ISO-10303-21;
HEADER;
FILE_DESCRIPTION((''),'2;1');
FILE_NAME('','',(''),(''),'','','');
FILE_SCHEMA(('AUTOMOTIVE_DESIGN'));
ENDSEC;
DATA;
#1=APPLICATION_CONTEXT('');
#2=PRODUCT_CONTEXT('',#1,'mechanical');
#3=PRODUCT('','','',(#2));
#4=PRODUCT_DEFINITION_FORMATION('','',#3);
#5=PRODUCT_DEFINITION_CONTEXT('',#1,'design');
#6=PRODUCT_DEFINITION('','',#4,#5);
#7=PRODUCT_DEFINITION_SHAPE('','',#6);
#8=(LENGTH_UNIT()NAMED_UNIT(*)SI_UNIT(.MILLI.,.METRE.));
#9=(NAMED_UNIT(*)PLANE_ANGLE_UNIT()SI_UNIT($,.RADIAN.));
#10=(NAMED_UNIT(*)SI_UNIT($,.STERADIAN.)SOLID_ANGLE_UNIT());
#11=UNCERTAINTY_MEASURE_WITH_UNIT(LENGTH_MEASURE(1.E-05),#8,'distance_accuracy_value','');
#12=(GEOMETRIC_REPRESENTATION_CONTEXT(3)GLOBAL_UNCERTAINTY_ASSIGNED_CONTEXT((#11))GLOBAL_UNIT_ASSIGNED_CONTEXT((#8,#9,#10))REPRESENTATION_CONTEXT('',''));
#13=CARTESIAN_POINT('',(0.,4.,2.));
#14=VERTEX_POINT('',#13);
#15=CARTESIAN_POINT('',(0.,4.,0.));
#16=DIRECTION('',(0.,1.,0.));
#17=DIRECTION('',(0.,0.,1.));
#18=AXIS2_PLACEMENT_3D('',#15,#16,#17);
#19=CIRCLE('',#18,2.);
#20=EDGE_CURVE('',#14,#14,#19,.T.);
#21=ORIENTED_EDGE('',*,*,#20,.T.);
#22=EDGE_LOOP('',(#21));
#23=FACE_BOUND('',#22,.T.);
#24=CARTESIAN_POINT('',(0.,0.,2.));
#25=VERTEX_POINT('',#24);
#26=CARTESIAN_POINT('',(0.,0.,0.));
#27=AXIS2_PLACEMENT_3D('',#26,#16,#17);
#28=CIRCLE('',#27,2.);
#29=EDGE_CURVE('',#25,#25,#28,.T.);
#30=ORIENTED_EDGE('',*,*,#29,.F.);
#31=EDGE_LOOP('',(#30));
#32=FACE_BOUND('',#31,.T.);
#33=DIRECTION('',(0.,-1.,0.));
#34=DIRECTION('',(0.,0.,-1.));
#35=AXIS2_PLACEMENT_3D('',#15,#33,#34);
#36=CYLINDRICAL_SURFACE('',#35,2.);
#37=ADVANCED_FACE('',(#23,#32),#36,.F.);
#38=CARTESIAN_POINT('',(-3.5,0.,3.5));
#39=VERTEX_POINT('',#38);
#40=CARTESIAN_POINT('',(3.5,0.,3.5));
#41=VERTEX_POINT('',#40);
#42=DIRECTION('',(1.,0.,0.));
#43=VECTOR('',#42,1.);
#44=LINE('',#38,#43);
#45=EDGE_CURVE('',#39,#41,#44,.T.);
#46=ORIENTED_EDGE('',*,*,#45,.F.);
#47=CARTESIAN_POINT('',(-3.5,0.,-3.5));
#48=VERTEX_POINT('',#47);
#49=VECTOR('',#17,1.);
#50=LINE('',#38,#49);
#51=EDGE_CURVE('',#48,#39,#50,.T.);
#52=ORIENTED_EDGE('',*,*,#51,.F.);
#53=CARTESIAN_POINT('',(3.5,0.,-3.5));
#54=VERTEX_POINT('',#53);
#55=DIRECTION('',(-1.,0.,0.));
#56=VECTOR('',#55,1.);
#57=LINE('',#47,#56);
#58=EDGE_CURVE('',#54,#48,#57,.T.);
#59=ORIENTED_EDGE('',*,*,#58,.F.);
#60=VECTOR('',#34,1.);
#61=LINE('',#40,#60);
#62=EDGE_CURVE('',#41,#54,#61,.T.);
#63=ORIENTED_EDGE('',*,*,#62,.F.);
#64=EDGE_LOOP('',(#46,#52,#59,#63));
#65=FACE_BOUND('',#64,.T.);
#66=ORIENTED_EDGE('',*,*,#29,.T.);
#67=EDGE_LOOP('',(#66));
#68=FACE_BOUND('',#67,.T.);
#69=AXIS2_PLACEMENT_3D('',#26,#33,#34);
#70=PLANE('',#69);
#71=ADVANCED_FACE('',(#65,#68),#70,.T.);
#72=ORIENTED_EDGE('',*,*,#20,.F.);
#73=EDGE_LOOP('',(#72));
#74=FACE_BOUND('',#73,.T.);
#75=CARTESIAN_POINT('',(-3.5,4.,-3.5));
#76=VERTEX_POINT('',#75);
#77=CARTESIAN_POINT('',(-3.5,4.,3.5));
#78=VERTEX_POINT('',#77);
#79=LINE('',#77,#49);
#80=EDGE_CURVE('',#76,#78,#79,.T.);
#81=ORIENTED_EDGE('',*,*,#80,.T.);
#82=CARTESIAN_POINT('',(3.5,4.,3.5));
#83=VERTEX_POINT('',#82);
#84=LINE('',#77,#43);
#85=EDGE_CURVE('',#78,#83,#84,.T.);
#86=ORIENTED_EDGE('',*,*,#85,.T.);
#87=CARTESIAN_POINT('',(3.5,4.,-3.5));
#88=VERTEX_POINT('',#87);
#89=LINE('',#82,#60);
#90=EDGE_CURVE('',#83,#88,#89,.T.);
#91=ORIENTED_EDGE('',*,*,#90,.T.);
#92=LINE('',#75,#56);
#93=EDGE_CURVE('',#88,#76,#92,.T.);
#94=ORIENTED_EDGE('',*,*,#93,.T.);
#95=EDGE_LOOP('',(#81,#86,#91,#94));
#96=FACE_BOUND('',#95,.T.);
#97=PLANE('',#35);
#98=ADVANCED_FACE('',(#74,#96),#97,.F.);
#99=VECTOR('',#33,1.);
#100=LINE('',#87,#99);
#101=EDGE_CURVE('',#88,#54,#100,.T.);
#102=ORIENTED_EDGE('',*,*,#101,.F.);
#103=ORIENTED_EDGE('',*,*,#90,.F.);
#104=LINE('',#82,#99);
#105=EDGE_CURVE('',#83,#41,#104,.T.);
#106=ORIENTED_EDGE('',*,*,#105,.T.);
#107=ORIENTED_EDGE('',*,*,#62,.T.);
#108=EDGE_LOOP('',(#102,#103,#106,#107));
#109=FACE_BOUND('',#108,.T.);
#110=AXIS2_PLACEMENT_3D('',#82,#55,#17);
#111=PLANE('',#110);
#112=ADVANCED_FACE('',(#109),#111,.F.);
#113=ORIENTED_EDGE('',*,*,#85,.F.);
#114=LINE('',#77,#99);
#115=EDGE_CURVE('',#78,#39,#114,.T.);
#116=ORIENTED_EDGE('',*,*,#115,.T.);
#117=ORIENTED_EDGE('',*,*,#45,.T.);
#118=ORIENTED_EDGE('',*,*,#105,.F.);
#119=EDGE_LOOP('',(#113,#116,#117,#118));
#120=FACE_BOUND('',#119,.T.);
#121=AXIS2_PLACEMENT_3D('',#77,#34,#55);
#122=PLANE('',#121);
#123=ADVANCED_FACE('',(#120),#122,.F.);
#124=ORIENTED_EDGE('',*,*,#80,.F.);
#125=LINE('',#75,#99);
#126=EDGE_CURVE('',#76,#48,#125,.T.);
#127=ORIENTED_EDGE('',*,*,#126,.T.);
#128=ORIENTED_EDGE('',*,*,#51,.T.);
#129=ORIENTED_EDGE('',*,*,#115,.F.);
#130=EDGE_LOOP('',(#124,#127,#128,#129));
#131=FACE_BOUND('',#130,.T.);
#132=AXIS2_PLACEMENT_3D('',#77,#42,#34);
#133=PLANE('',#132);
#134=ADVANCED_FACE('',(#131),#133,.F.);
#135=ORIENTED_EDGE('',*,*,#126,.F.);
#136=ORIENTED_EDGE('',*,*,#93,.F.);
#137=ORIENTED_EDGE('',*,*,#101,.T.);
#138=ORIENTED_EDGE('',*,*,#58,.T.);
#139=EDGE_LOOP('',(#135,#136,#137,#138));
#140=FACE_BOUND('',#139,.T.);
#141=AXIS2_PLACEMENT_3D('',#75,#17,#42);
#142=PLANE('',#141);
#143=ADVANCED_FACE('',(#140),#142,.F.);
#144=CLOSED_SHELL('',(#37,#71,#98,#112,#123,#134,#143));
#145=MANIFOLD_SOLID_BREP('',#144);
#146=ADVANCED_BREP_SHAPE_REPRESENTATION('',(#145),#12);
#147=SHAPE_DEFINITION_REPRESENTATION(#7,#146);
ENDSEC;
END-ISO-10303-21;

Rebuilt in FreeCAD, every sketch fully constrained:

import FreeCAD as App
import Part
import Sketcher
from FreeCAD import Vector
Q = App.Units.Quantity

doc = App.newDocument("Part")
body = doc.addObject("PartDesign::Body", "Body")

sketch1 = body.newObject("Sketcher::SketchObject", "Sketch")
sketch1.AttachmentSupport = (doc.getObject("XZ_Plane"), [""])
sketch1.MapMode = "FlatFace"
sketch1.addGeometry([
    Part.LineSegment(Vector(-3.5, -3.5, 0), Vector(-3.5, 3.5, 0)),
    Part.LineSegment(Vector(-3.5, 3.5, 0), Vector(3.5, 3.5, 0)),
    Part.LineSegment(Vector(3.5, 3.5, 0), Vector(3.5, -3.5, 0)),
    Part.LineSegment(Vector(3.5, -3.5, 0), Vector(-3.5, -3.5, 0)),
    Part.Circle(Vector(0, 0, 0), Vector(0, 0, 1), 2),
], False)
sketch1.addConstraint([
    Sketcher.Constraint("Coincident", 0, 2, 1, 1),
    Sketcher.Constraint("Coincident", 1, 2, 2, 1),
    Sketcher.Constraint("Coincident", 2, 2, 3, 1),
    Sketcher.Constraint("Coincident", 3, 2, 0, 1),
    Sketcher.Constraint("Vertical", 0),
    Sketcher.Constraint("Horizontal", 1),
    Sketcher.Constraint("Vertical", 2),
    Sketcher.Constraint("Horizontal", 3),
    Sketcher.Constraint("Coincident", 4, 3, -1, 1),
    Sketcher.Constraint("Symmetric", 0, 2, 2, 2, -1, 1),
    Sketcher.Constraint("Equal", 3, 0),
    Sketcher.Constraint("Diameter", 4, Q("4 mm")),
    Sketcher.Constraint("DistanceX", 1, 1, 1, 2, Q("7 mm")),
])
pad1 = body.newObject("PartDesign::Pad", "Pad")
pad1.Profile = sketch1
pad1.Length = 4
pad1.Reversed = True

doc.recompute()
